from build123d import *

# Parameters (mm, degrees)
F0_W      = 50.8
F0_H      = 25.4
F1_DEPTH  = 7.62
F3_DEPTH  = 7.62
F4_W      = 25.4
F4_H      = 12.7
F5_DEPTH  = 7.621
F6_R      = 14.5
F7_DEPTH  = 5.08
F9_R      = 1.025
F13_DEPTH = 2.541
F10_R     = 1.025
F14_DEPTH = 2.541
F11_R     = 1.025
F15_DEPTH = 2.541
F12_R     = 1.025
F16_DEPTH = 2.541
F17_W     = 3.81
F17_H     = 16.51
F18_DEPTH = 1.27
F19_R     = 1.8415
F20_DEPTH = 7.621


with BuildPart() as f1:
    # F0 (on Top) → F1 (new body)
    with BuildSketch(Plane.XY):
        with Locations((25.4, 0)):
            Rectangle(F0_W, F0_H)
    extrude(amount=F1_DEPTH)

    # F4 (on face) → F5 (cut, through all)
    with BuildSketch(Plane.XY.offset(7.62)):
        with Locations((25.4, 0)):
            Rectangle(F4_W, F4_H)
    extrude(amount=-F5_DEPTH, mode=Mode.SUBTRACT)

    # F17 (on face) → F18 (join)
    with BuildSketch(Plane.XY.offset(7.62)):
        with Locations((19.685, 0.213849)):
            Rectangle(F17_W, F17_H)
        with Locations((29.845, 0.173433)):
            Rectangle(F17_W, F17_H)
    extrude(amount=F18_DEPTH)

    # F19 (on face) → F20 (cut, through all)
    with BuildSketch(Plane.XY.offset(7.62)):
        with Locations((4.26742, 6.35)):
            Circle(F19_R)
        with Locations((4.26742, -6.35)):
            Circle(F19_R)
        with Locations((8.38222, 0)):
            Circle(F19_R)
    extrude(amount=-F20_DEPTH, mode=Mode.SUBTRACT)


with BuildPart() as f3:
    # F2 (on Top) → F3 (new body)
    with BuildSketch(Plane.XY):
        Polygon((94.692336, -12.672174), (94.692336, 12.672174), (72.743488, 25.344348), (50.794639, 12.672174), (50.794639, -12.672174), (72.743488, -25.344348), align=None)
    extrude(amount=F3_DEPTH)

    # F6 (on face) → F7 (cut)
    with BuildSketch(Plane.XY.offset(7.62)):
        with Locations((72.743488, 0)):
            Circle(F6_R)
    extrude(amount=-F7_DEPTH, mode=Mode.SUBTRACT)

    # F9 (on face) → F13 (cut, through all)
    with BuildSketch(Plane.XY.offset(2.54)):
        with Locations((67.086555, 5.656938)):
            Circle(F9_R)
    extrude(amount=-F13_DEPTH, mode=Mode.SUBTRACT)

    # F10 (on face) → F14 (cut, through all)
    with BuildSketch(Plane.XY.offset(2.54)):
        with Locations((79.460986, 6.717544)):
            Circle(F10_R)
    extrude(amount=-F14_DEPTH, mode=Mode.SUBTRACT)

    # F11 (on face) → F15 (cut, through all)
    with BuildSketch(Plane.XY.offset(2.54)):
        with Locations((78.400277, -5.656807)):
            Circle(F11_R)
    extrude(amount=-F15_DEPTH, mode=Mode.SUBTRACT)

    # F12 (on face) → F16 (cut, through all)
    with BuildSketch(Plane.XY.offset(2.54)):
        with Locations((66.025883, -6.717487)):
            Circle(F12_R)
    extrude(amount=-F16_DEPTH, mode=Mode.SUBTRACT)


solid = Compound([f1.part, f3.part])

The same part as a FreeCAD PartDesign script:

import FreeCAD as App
import Part
import Sketcher

V = App.Vector
Q = App.Units.Quantity

doc = App.newDocument("Part")
params = doc.addObject("Spreadsheet::Sheet", "Params")
for row, (alias, value) in enumerate([
    ("sketch1_width", "2 in"),
    ("sketch1_height", "1 in"),
    ("pad1_length", "0.3 in"),
    ("sketch2_width", "1 in"),
    ("sketch2_height", "0.5 in"),
    ("sketch3_width", "0.15 in"),
    ("sketch3_height", "0.65 in"),
    ("pad2_length", "0.05 in"),
    ("sketch4_diameter", "0.145 in"),
    ("pad3_length", "0.3 in"),
    ("pocket3_length", "0.2 in"),
], start=1):
    params.set(f"A{row}", alias)
    params.set(f"B{row}", "=" + value)
    params.setAlias(f"B{row}", alias)

body = doc.addObject("PartDesign::Body", "Body")

# Sketch on XY plane
sketch1 = body.newObject("Sketcher::SketchObject", "Sketch")
sketch1.AttachmentSupport = (doc.getObject("XY_Plane"), [""])
sketch1.MapMode = "FlatFace"
sketch1.addGeometry(Part.LineSegment(V(0, 13, 0), V(0, -13, 0)), False)
sketch1.addGeometry(Part.LineSegment(V(0, -13, 0), V(51, -13, 0)), False)
sketch1.addGeometry(Part.LineSegment(V(51, -13, 0), V(51, 13, 0)), False)
sketch1.addGeometry(Part.LineSegment(V(51, 13, 0), V(0, 13, 0)), False)
sketch1.addConstraint(Sketcher.Constraint("Coincident", 0, 2, 1, 1))
sketch1.addConstraint(Sketcher.Constraint("Coincident", 1, 2, 2, 1))
sketch1.addConstraint(Sketcher.Constraint("Coincident", 2, 2, 3, 1))
sketch1.addConstraint(Sketcher.Constraint("Coincident", 3, 2, 0, 1))
sketch1.addConstraint(Sketcher.Constraint("Vertical", 0))
sketch1.addConstraint(Sketcher.Constraint("Horizontal", 1))
sketch1.addConstraint(Sketcher.Constraint("Vertical", 2))
sketch1.addConstraint(Sketcher.Constraint("Horizontal", 3))
sketch1.addConstraint(Sketcher.Constraint("Symmetric", 0, 2, 3, 2, -1, 1))
sketch1.addConstraint(Sketcher.Constraint("DistanceX", 1, 1, 1, 2, Q("2 in")))
sketch1.addConstraint(Sketcher.Constraint("DistanceY", 0, 2, 0, 1, Q("1 in")))
sketch1.setExpression("Constraints[9]", "Params.sketch1_width")
sketch1.setExpression("Constraints[10]", "Params.sketch1_height")
pad1 = body.newObject("PartDesign::Pad", "Pad")
pad1.Profile = sketch1
pad1.setExpression("Length", "Params.pad1_length")

# Sketch on XY plane
sketch2 = body.newObject("Sketcher::SketchObject", "Sketch001")
sketch2.AttachmentSupport = (doc.getObject("XY_Plane"), [""])
sketch2.MapMode = "FlatFace"
sketch2.AttachmentOffset = App.Placement(V(0, 0, 0.3 * 25.4), App.Rotation())
sketch2.addGeometry(Part.LineSegment(V(13, 6, 0), V(13, -6, 0)), False)
sketch2.addGeometry(Part.LineSegment(V(13, -6, 0), V(38, -6, 0)), False)
sketch2.addGeometry(Part.LineSegment(V(38, -6, 0), V(38, 6, 0)), False)
sketch2.addGeometry(Part.LineSegment(V(38, 6, 0), V(13, 6, 0)), False)
sketch2.addConstraint(Sketcher.Constraint("Coincident", 0, 2, 1, 1))
sketch2.addConstraint(Sketcher.Constraint("Coincident", 1, 2, 2, 1))
sketch2.addConstraint(Sketcher.Constraint("Coincident", 2, 2, 3, 1))
sketch2.addConstraint(Sketcher.Constraint("Coincident", 3, 2, 0, 1))
sketch2.addConstraint(Sketcher.Constraint("Vertical", 0))
sketch2.addConstraint(Sketcher.Constraint("Horizontal", 1))
sketch2.addConstraint(Sketcher.Constraint("Vertical", 2))
sketch2.addConstraint(Sketcher.Constraint("Horizontal", 3))
sketch2.addConstraint(Sketcher.Constraint("DistanceX", 1, 1, 1, 2, Q("1 in")))
sketch2.addConstraint(Sketcher.Constraint("DistanceY", 0, 2, 0, 1, Q("0.5 in")))
sketch2.addConstraint(Sketcher.Constraint("DistanceX", -1, 1, 0, 2, Q("0.5 in")))
sketch2.addConstraint(Sketcher.Constraint("DistanceY", 0, 2, -1, 1, Q("0.25 in")))
sketch2.setExpression("Constraints[8]", "Params.sketch2_width")
sketch2.setExpression("Constraints[9]", "Params.sketch2_height")
pocket1 = body.newObject("PartDesign::Pocket", "Pocket")
pocket1.Profile = sketch2
pocket1.Type = "ThroughAll"

# Sketch on XY plane
sketch3 = body.newObject("Sketcher::SketchObject", "Sketch002")
sketch3.AttachmentSupport = (doc.getObject("XY_Plane"), [""])
sketch3.MapMode = "FlatFace"
sketch3.AttachmentOffset = App.Placement(V(0, 0, 0.3 * 25.4), App.Rotation())
sketch3.addGeometry(Part.LineSegment(V(17.8, 8.5, 0), V(17.8, -8, 0)), False)
sketch3.addGeometry(Part.LineSegment(V(17.8, -8, 0), V(21.6, -8, 0)), False)
sketch3.addGeometry(Part.LineSegment(V(21.6, -8, 0), V(21.6, 8.5, 0)), False)
sketch3.addGeometry(Part.LineSegment(V(21.6, 8.5, 0), V(17.8, 8.5, 0)), False)
sketch3.addGeometry(Part.LineSegment(V(27.9, 8.4, 0), V(27.9, -8.1, 0)), False)
sketch3.addGeometry(Part.LineSegment(V(27.9, -8.1, 0), V(31.8, -8.1, 0)), False)
sketch3.addGeometry(Part.LineSegment(V(31.8, -8.1, 0), V(31.8, 8.4, 0)), False)
sketch3.addGeometry(Part.LineSegment(V(31.8, 8.4, 0), V(27.9, 8.4, 0)), False)
sketch3.addConstraint(Sketcher.Constraint("Coincident", 0, 2, 1, 1))
sketch3.addConstraint(Sketcher.Constraint("Coincident", 1, 2, 2, 1))
sketch3.addConstraint(Sketcher.Constraint("Coincident", 2, 2, 3, 1))
sketch3.addConstraint(Sketcher.Constraint("Coincident", 3, 2, 0, 1))
sketch3.addConstraint(Sketcher.Constraint("Coincident", 4, 2, 5, 1))
sketch3.addConstraint(Sketcher.Constraint("Coincident", 5, 2, 6, 1))
sketch3.addConstraint(Sketcher.Constraint("Coincident", 6, 2, 7, 1))
sketch3.addConstraint(Sketcher.Constraint("Coincident", 7, 2, 4, 1))
sketch3.addConstraint(Sketcher.Constraint("Vertical", 0))
sketch3.addConstraint(Sketcher.Constraint("Horizontal", 1))
sketch3.addConstraint(Sketcher.Constraint("Vertical", 2))
sketch3.addConstraint(Sketcher.Constraint("Horizontal", 3))
sketch3.addConstraint(Sketcher.Constraint("Vertical", 4))
sketch3.addConstraint(Sketcher.Constraint("Horizontal", 5))
sketch3.addConstraint(Sketcher.Constraint("Vertical", 6))
sketch3.addConstraint(Sketcher.Constraint("Horizontal", 7))
sketch3.addConstraint(Sketcher.Constraint("Equal", 3, 5))
sketch3.addConstraint(Sketcher.Constraint("Equal", 2, 4))
sketch3.addConstraint(Sketcher.Constraint("DistanceX", 1, 1, 1, 2, Q("0.15 in")))
sketch3.addConstraint(Sketcher.Constraint("DistanceY", 0, 2, 0, 1, Q("0.65 in")))
sketch3.addConstraint(Sketcher.Constraint("DistanceX", -1, 1, 0, 2, Q("0.7 in")))
sketch3.addConstraint(Sketcher.Constraint("DistanceX", -1, 1, 4, 2, Q("1.1 in")))
sketch3.addConstraint(Sketcher.Constraint("DistanceY", 0, 2, -1, 1, Q("8.041151 mm")))
sketch3.addConstraint(Sketcher.Constraint("DistanceY", 4, 2, -1, 1, Q("8.081567 mm")))
sketch3.setExpression("Constraints[18]", "Params.sketch3_width")
sketch3.setExpression("Constraints[19]", "Params.sketch3_height")
pad2 = body.newObject("PartDesign::Pad", "Pad001")
pad2.Profile = sketch3
pad2.setExpression("Length", "Params.pad2_length")

# Sketch on XY plane
sketch4 = body.newObject("Sketcher::SketchObject", "Sketch003")
sketch4.AttachmentSupport = (doc.getObject("XY_Plane"), [""])
sketch4.MapMode = "FlatFace"
sketch4.AttachmentOffset = App.Placement(V(0, 0, 0.3 * 25.4), App.Rotation())
sketch4.addGeometry(Part.Circle(V(4.3, 6.3, 0), V(0, 0, 1), 1.8), False)
sketch4.addGeometry(Part.Circle(V(4.3, -6.3, 0), V(0, 0, 1), 1.8), False)
sketch4.addGeometry(Part.Circle(V(8.4, 0, 0), V(0, 0, 1), 1.8), False)
sketch4.addConstraint(Sketcher.Constraint("Equal", 0, 1))
sketch4.addConstraint(Sketcher.Constraint("Equal", 1, 2))
sketch4.addConstraint(Sketcher.Constraint("Symmetric", 0, 3, 1, 3, -1))
sketch4.addConstraint(Sketcher.Constraint("PointOnObject", 2, 3, -1))
sketch4.addConstraint(Sketcher.Constraint("Diameter", 0, Q("0.145 in")))
sketch4.addConstraint(Sketcher.Constraint("DistanceY", 1, 3, 0, 3, Q("0.5 in")))
sketch4.addConstraint(Sketcher.Constraint("DistanceX", 0, 3, 2, 3, Q("0.162 in")))
sketch4.addConstraint(Sketcher.Constraint("DistanceX", -1, 1, 0, 3, Q("4.26742 mm")))
sketch4.setExpression("Constraints[4]", "Params.sketch4_diameter")
pocket2 = body.newObject("PartDesign::Pocket", "Pocket001")
pocket2.Profile = sketch4
pocket2.Type = "ThroughAll"
body2 = doc.addObject("PartDesign::Body", "Body001")

# Sketch on XY plane
sketch5 = body2.newObject("Sketcher::SketchObject", "Sketch004")
sketch5.AttachmentSupport = (doc.getObject("XY_Plane001"), [""])
sketch5.MapMode = "FlatFace"
sketch5.addGeometry(Part.LineSegment(V(95, -13, 0), V(95, 13, 0)), False)
sketch5.addGeometry(Part.LineSegment(V(95, 13, 0), V(73, 25, 0)), False)
sketch5.addGeometry(Part.LineSegment(V(73, 25, 0), V(51, 13, 0)), False)
sketch5.addGeometry(Part.LineSegment(V(51, 13, 0), V(51, -13, 0)), False)
sketch5.addGeometry(Part.LineSegment(V(51, -13, 0), V(73, -25, 0)), False)
sketch5.addGeometry(Part.LineSegment(V(73, -25, 0), V(95, -13, 0)), False)
sketch5.addConstraint(Sketcher.Constraint("Coincident", 0, 2, 1, 1))
sketch5.addConstraint(Sketcher.Constraint("Coincident", 1, 2, 2, 1))
sketch5.addConstraint(Sketcher.Constraint("Coincident", 2, 2, 3, 1))
sketch5.addConstraint(Sketcher.Constraint("Coincident", 3, 2, 4, 1))
sketch5.addConstraint(Sketcher.Constraint("Coincident", 4, 2, 5, 1))
sketch5.addConstraint(Sketcher.Constraint("Coincident", 5, 2, 0, 1))
sketch5.addConstraint(Sketcher.Constraint("Vertical", 0))
sketch5.addConstraint(Sketcher.Constraint("Vertical", 3))
sketch5.addConstraint(Sketcher.Constraint("Symmetric", 1, 2, 4, 2, -1))
sketch5.addConstraint(Sketcher.Constraint("Parallel", 1, 4))
sketch5.addConstraint(Sketcher.Constraint("Parallel", 2, 5))
sketch5.addConstraint(Sketcher.Constraint("Horizontal", 0, 2, 2, 2))
sketch5.addConstraint(Sketcher.Constraint("Horizontal", 3, 2, 5, 2))
sketch5.addConstraint(Sketcher.Constraint("Angle", 1, Q("149.999999 deg")))
sketch5.addConstraint(Sketcher.Constraint("DistanceY", 0, 1, 0, 2, Q("25.344348 mm")))
sketch5.addConstraint(Sketcher.Constraint("DistanceX", -1, 1, 1, 2, Q("72.743488 mm")))
sketch5.addConstraint(Sketcher.Constraint("DistanceY", -1, 1, 1, 2, Q("25.344348 mm")))
pad3 = body2.newObject("PartDesign::Pad", "Pad002")
pad3.Profile = sketch5
pad3.setExpression("Length", "Params.pad3_length")

# Sketch on XY plane
sketch6 = body2.newObject("Sketcher::SketchObject", "Sketch005")
sketch6.AttachmentSupport = (doc.getObject("XY_Plane001"), [""])
sketch6.MapMode = "FlatFace"
sketch6.AttachmentOffset = App.Placement(V(0, 0, 0.3 * 25.4), App.Rotation())
sketch6.addGeometry(Part.Circle(V(73, 0, 0), V(0, 0, 1), 14), False)
sketch6.addConstraint(Sketcher.Constraint("PointOnObject", 0, 3, -1))
sketch6.addConstraint(Sketcher.Constraint("Diameter", 0, Q("29 mm")))
sketch6.addConstraint(Sketcher.Constraint("DistanceX", -1, 1, 0, 3, Q("72.743488 mm")))
pocket3 = body2.newObject("PartDesign::Pocket", "Pocket002")
pocket3.Profile = sketch6
pocket3.setExpression("Length", "Params.pocket3_length")

# Sketch on XY plane
sketch7 = body2.newObject("Sketcher::SketchObject", "Sketch006")
sketch7.AttachmentSupport = (doc.getObject("XY_Plane001"), [""])
sketch7.MapMode = "FlatFace"
sketch7.AttachmentOffset = App.Placement(V(0, 0, 0.1 * 25.4), App.Rotation())
sketch7.addGeometry(Part.Circle(V(67.1, 5.7, 0), V(0, 0, 1), 1), False)
sketch7.addConstraint(Sketcher.Constraint("Diameter", 0, Q("2.05 mm")))
sketch7.addConstraint(Sketcher.Constraint("DistanceY", -1, 1, 0, 3, Q("5.656938 mm")))
sketch7.addConstraint(Sketcher.Constraint("DistanceX", -1, 1, 0, 3, Q("67.086555 mm")))
pocket4 = body2.newObject("PartDesign::Pocket", "Pocket003")
pocket4.Profile = sketch7
pocket4.Type = "ThroughAll"

# Sketch on XY plane
sketch8 = body2.newObject("Sketcher::SketchObject", "Sketch007")
sketch8.AttachmentSupport = (doc.getObject("XY_Plane001"), [""])
sketch8.MapMode = "FlatFace"
sketch8.AttachmentOffset = App.Placement(V(0, 0, 0.1 * 25.4), App.Rotation())
sketch8.addGeometry(Part.Circle(V(79.5, 6.7, 0), V(0, 0, 1), 1), False)
sketch8.addConstraint(Sketcher.Constraint("Diameter", 0, Q("2.05 mm")))
sketch8.addConstraint(Sketcher.Constraint("DistanceX", -1, 1, 0, 3, Q("79.460986 mm")))
sketch8.addConstraint(Sketcher.Constraint("DistanceY", -1, 1, 0, 3, Q("6.717544 mm")))
pocket5 = body2.newObject("PartDesign::Pocket", "Pocket004")
pocket5.Profile = sketch8
pocket5.Type = "ThroughAll"

# Sketch on XY plane
sketch9 = body2.newObject("Sketcher::SketchObject", "Sketch008")
sketch9.AttachmentSupport = (doc.getObject("XY_Plane001"), [""])
sketch9.MapMode = "FlatFace"
sketch9.AttachmentOffset = App.Placement(V(0, 0, 0.1 * 25.4), App.Rotation())
sketch9.addGeometry(Part.Circle(V(78.4, -5.7, 0), V(0, 0, 1), 1), False)
sketch9.addConstraint(Sketcher.Constraint("Diameter", 0, Q("2.05 mm")))
sketch9.addConstraint(Sketcher.Constraint("DistanceX", -1, 1, 0, 3, Q("78.400277 mm")))
sketch9.addConstraint(Sketcher.Constraint("DistanceY", 0, 3, -1, 1, Q("5.656807 mm")))
pocket6 = body2.newObject("PartDesign::Pocket", "Pocket005")
pocket6.Profile = sketch9
pocket6.Type = "ThroughAll"

# Sketch on XY plane
sketch10 = body2.newObject("Sketcher::SketchObject", "Sketch009")
sketch10.AttachmentSupport = (doc.getObject("XY_Plane001"), [""])
sketch10.MapMode = "FlatFace"
sketch10.AttachmentOffset = App.Placement(V(0, 0, 0.1 * 25.4), App.Rotation())
sketch10.addGeometry(Part.Circle(V(66, -6.7, 0), V(0, 0, 1), 1), False)
sketch10.addConstraint(Sketcher.Constraint("Diameter", 0, Q("2.05 mm")))
sketch10.addConstraint(Sketcher.Constraint("DistanceX", -1, 1, 0, 3, Q("66.025883 mm")))
sketch10.addConstraint(Sketcher.Constraint("DistanceY", 0, 3, -1, 1, Q("6.717487 mm")))
pocket7 = body2.newObject("PartDesign::Pocket", "Pocket006")
pocket7.Profile = sketch10
pocket7.Type = "ThroughAll"

doc.recompute()
